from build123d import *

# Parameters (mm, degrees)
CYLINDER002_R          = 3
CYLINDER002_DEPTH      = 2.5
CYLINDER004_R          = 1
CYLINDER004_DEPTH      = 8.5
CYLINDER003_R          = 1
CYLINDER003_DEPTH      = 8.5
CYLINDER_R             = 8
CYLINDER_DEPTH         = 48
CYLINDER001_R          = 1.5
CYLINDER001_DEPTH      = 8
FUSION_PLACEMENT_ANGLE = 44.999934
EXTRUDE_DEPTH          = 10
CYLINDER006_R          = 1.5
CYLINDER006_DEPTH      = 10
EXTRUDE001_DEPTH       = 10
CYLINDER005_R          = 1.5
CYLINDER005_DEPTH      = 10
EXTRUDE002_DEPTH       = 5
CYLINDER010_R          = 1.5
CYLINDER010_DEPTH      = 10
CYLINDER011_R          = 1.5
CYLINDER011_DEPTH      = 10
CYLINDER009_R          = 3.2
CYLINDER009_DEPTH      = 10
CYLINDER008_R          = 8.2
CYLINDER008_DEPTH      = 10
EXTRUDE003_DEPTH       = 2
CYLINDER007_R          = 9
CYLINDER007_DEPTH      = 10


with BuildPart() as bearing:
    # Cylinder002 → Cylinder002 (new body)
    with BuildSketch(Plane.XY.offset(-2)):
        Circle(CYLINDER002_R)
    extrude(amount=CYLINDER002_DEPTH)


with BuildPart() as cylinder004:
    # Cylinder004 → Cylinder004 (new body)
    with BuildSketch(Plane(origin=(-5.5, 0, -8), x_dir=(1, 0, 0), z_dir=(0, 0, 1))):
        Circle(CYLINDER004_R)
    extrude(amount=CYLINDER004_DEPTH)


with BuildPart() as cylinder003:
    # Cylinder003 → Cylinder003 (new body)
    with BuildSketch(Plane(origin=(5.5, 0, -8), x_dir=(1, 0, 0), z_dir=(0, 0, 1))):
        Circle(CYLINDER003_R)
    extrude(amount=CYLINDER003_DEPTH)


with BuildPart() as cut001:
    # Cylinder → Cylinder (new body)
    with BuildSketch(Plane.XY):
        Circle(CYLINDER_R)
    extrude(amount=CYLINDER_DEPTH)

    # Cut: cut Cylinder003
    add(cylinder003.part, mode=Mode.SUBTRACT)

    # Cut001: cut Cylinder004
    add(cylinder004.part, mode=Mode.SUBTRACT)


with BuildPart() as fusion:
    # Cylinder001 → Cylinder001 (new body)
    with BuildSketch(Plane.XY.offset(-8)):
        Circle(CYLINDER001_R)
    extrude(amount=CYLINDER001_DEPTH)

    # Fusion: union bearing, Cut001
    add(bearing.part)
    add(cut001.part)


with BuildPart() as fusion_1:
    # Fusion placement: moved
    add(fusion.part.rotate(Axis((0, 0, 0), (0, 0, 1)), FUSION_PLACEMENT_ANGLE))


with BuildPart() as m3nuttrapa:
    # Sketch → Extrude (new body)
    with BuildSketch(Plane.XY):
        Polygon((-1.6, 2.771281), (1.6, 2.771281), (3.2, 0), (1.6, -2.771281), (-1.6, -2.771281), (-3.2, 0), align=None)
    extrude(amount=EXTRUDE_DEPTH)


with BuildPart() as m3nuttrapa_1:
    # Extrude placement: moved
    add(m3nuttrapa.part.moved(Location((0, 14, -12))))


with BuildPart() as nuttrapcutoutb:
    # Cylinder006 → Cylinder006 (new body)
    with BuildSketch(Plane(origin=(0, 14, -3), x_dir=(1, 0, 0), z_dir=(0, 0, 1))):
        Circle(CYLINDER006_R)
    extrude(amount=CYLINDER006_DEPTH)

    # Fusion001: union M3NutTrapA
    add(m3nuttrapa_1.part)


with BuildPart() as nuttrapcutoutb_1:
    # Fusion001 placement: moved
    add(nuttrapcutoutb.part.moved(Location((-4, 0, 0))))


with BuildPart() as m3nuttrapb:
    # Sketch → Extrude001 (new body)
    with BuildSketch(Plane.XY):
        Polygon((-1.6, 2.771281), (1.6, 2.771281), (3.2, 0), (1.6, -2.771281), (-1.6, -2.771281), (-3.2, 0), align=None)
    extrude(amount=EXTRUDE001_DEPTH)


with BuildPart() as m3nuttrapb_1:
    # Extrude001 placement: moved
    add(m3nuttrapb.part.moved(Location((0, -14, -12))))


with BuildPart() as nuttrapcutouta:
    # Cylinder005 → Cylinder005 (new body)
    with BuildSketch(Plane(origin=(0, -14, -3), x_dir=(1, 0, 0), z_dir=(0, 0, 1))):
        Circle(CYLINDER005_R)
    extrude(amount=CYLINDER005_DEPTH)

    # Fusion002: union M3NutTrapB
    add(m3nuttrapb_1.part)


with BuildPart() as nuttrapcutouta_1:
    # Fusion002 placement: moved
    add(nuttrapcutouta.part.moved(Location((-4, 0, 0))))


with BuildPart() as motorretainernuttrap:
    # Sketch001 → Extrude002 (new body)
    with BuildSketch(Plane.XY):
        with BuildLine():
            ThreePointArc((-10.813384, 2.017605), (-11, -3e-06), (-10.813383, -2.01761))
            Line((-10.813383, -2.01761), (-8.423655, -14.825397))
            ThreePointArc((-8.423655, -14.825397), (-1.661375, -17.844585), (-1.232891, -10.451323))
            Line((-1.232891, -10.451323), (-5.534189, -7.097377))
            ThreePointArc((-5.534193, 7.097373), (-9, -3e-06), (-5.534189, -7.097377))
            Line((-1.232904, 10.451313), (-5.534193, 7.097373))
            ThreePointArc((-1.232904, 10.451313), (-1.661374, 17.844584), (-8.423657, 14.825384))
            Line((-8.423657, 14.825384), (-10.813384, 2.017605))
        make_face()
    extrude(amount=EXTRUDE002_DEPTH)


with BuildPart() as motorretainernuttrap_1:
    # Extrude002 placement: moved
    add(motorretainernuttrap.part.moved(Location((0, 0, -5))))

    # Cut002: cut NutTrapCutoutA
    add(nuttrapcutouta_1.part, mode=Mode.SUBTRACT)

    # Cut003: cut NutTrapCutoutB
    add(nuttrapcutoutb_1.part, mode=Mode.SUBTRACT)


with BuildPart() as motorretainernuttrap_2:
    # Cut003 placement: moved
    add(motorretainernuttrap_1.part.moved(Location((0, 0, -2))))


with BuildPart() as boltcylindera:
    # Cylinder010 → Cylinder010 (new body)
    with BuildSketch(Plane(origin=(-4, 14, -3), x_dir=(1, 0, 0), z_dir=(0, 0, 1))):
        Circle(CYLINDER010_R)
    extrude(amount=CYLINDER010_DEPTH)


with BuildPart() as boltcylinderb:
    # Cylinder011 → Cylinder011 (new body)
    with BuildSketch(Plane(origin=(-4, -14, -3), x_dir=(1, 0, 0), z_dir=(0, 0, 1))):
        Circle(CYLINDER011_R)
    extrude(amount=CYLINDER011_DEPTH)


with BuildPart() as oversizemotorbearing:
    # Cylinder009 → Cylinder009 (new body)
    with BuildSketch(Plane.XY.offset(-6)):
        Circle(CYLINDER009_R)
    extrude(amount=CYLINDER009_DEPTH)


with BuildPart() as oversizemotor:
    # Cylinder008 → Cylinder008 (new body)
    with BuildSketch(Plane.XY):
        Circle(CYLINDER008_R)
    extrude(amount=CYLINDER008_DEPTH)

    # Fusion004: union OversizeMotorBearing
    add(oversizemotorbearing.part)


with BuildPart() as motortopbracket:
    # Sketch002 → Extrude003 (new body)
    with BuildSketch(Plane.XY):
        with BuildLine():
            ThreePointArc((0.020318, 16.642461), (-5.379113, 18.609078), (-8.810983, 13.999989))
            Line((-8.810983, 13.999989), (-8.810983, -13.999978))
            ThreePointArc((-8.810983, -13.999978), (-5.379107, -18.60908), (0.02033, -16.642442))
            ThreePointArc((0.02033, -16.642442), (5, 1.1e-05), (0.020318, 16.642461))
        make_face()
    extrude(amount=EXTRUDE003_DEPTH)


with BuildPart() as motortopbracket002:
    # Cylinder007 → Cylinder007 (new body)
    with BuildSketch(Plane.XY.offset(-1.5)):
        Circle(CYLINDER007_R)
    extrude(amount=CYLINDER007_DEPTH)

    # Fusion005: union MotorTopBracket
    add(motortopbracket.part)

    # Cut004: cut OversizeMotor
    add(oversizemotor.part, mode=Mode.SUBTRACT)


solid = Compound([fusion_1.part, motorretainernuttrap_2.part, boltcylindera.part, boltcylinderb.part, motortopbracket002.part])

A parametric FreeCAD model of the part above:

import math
import FreeCAD as App
import Part
import Sketcher
from FreeCAD import Vector
Q = App.Units.Quantity


def add_polygon(sketch, points):
    """Adds a closed chain of lines whose ends are joined by coincident constraints."""
    first, n = sketch.GeometryCount, len(points)
    for a, b in zip(points, points[1:] + points[:1]):
        sketch.addGeometry(Part.LineSegment(App.Vector(*a, 0), App.Vector(*b, 0)), False)
    for i in range(n):
        sketch.addConstraint(Sketcher.Constraint("Coincident", first + i, 2, first + (i + 1) % n, 1))

doc = App.newDocument("Part")
body = doc.addObject("PartDesign::Body", "Body")

sketch1 = body.newObject("Sketcher::SketchObject", "Sketch")
sketch1.AttachmentSupport = (doc.getObject("XY_Plane"), [""])
sketch1.MapMode = "FlatFace"
sketch1.AttachmentOffset = App.Placement(Vector(0, 0, -2), App.Rotation())
sketch1.addGeometry(Part.Circle(Vector(0, 0, 0), Vector(0, 0, 1), 3), False)
sketch1.addConstraint([
    Sketcher.Constraint("Coincident", 0, 3, -1, 1),
    Sketcher.Constraint("Diameter", 0, Q("6 mm")),
])
pad1 = body.newObject("PartDesign::Pad", "Pad")
pad1.Profile = sketch1
pad1.Length = 2.5
body2 = doc.addObject("PartDesign::Body", "Body001")

sketch2 = body2.newObject("Sketcher::SketchObject", "Sketch001")
sketch2.AttachmentSupport = (doc.getObject("XY_Plane001"), [""])
sketch2.MapMode = "FlatFace"
sketch2.AttachmentOffset = App.Placement(Vector(0, 0, -8), App.Rotation())
sketch2.addGeometry(Part.Circle(Vector(-5.5, 0, 0), Vector(0, 0, 1), 1), False)
sketch2.addConstraint([
    Sketcher.Constraint("PointOnObject", 0, 3, -1),
    Sketcher.Constraint("Diameter", 0, Q("2 mm")),
    Sketcher.Constraint("DistanceX", 0, 3, -1, 1, Q("5.5 mm")),
])
pad2 = body2.newObject("PartDesign::Pad", "Pad001")
pad2.Profile = sketch2
pad2.Length = 8.5
body3 = doc.addObject("PartDesign::Body", "Body002")

sketch3 = body3.newObject("Sketcher::SketchObject", "Sketch002")
sketch3.AttachmentSupport = (doc.getObject("XY_Plane002"), [""])
sketch3.MapMode = "FlatFace"
sketch3.AttachmentOffset = App.Placement(Vector(0, 0, -8), App.Rotation())
sketch3.addGeometry(Part.Circle(Vector(5.5, 0, 0), Vector(0, 0, 1), 1), False)
sketch3.addConstraint([
    Sketcher.Constraint("PointOnObject", 0, 3, -1),
    Sketcher.Constraint("Diameter", 0, Q("2 mm")),
    Sketcher.Constraint("DistanceX", -1, 1, 0, 3, Q("5.5 mm")),
])
pad3 = body3.newObject("PartDesign::Pad", "Pad002")
pad3.Profile = sketch3
pad3.Length = 8.5
body4 = doc.addObject("PartDesign::Body", "Body003")

sketch4 = body4.newObject("Sketcher::SketchObject", "Sketch003")
sketch4.AttachmentSupport = (doc.getObject("XY_Plane003"), [""])
sketch4.MapMode = "FlatFace"
sketch4.addGeometry(Part.Circle(Vector(0, 0, 0), Vector(0, 0, 1), 8), False)
sketch4.addConstraint([
    Sketcher.Constraint("Coincident", 0, 3, -1, 1),
    Sketcher.Constraint("Diameter", 0, Q("16 mm")),
])
pad4 = body4.newObject("PartDesign::Pad", "Pad003")
pad4.Profile = sketch4
pad4.Length = 48
doc.recompute()

boolean = body4.newObject("PartDesign::Boolean", "Boolean")
boolean.Type = "Cut"
boolean.addObjects([body3])
doc.recompute()

boolean2 = body4.newObject("PartDesign::Boolean", "Boolean001")
boolean2.Type = "Cut"
boolean2.addObjects([body2])
body5 = doc.addObject("PartDesign::Body", "Body004")

sketch5 = body5.newObject("Sketcher::SketchObject", "Sketch004")
sketch5.AttachmentSupport = (doc.getObject("XY_Plane004"), [""])
sketch5.MapMode = "FlatFace"
sketch5.AttachmentOffset = App.Placement(Vector(0, 0, -8), App.Rotation())
sketch5.addGeometry(Part.Circle(Vector(0, 0, 0), Vector(0, 0, 1), 1.5), False)
sketch5.addConstraint([
    Sketcher.Constraint("Coincident", 0, 3, -1, 1),
    Sketcher.Constraint("Diameter", 0, Q("3 mm")),
])
pad5 = body5.newObject("PartDesign::Pad", "Pad004")
pad5.Profile = sketch5
pad5.Length = 8
doc.recompute()

boolean3 = body5.newObject("PartDesign::Boolean", "Boolean002")
boolean3.Type = "Fuse"
boolean3.addObjects([body])
doc.recompute()

boolean4 = body5.newObject("PartDesign::Boolean", "Boolean003")
boolean4.Type = "Fuse"
boolean4.addObjects([body4])
body6 = doc.addObject("PartDesign::Body", "Body005")
doc.recompute()

body5.Placement = App.Placement(Vector(0, 0, 0), App.Rotation(Vector(0, 0, 1), 44.999934))
boolean5 = body6.newObject("PartDesign::Boolean", "Boolean004")
boolean5.Type = "Fuse"
boolean5.addObjects([body5])
body7 = doc.addObject("PartDesign::Body", "Body006")

sketch6 = body7.newObject("Sketcher::SketchObject", "Sketch005")
sketch6.AttachmentSupport = (doc.getObject("XY_Plane006"), [""])
sketch6.MapMode = "FlatFace"
add_polygon(sketch6, [(1.6, 2.771281), (-1.6, 2.771281), (-3.2, 0), (-1.6, -2.771281), (1.6, -2.771281), (3.2, 0)])
sketch6.addConstraint([
    Sketcher.Constraint("Horizontal", 0),
    Sketcher.Constraint("Horizontal", 3),
    Sketcher.Constraint("Symmetric", 0, 2, 3, 2, -1, 1),
    Sketcher.Constraint("Symmetric", 1, 2, 4, 2, -1, 1),
    Sketcher.Constraint("PointOnObject", 1, 2, -1),
    Sketcher.Constraint("Parallel", 2, 5),
    Sketcher.Constraint("Vertical", 0, 2, 2, 2),
    Sketcher.Constraint("Angle", 1, Q("-120.000003 deg")),
    Sketcher.Constraint("DistanceX", 0, 2, 0, 1, Q("3.2 mm")),
    Sketcher.Constraint("Distance", 1, Q("3.2 mm")),
])
pad6 = body7.newObject("PartDesign::Pad", "Pad005")
pad6.Profile = sketch6
pad6.Length = 10
body8 = doc.addObject("PartDesign::Body", "Body007")
doc.recompute()

body7.Placement = App.Placement(Vector(0, 14, -12), App.Rotation(Vector(0, 0, 1), 0))
boolean6 = body8.newObject("PartDesign::Boolean", "Boolean005")
boolean6.Type = "Fuse"
boolean6.addObjects([body7])
body9 = doc.addObject("PartDesign::Body", "Body008")

sketch7 = body9.newObject("Sketcher::SketchObject", "Sketch006")
sketch7.AttachmentSupport = (doc.getObject("XY_Plane008"), [""])
sketch7.MapMode = "FlatFace"
sketch7.AttachmentOffset = App.Placement(Vector(0, 0, -3), App.Rotation())
sketch7.addGeometry(Part.Circle(Vector(0, 14, 0), Vector(0, 0, 1), 1.5), False)
sketch7.addConstraint([
    Sketcher.Constraint("PointOnObject", 0, 3, -2),
    Sketcher.Constraint("Diameter", 0, Q("3 mm")),
    Sketcher.Constraint("DistanceY", -1, 1, 0, 3, Q("14 mm")),
])
pad7 = body9.newObject("PartDesign::Pad", "Pad006")
pad7.Profile = sketch7
pad7.Length = 10
doc.recompute()

boolean7 = body9.newObject("PartDesign::Boolean", "Boolean006")
boolean7.Type = "Fuse"
boolean7.addObjects([body8])
body10 = doc.addObject("PartDesign::Body", "Body009")
doc.recompute()

body9.Placement = App.Placement(Vector(-4, 0, 0), App.Rotation(Vector(0, 0, 1), 0))
boolean8 = body10.newObject("PartDesign::Boolean", "Boolean007")
boolean8.Type = "Fuse"
boolean8.addObjects([body9])
body11 = doc.addObject("PartDesign::Body", "Body010")

sketch8 = body11.newObject("Sketcher::SketchObject", "Sketch007")
sketch8.AttachmentSupport = (doc.getObject("XY_Plane010"), [""])
sketch8.MapMode = "FlatFace"
add_polygon(sketch8, [(1.6, 2.771281), (-1.6, 2.771281), (-3.2, 0), (-1.6, -2.771281), (1.6, -2.771281), (3.2, 0)])
sketch8.addConstraint([
    Sketcher.Constraint("Horizontal", 0),
    Sketcher.Constraint("Horizontal", 3),
    Sketcher.Constraint("Symmetric", 0, 2, 3, 2, -1, 1),
    Sketcher.Constraint("Symmetric", 1, 2, 4, 2, -1, 1),
    Sketcher.Constraint("PointOnObject", 1, 2, -1),
    Sketcher.Constraint("Parallel", 2, 5),
    Sketcher.Constraint("Vertical", 0, 2, 2, 2),
    Sketcher.Constraint("Angle", 1, Q("-120.000003 deg")),
    Sketcher.Constraint("DistanceX", 0, 2, 0, 1, Q("3.2 mm")),
    Sketcher.Constraint("Distance", 1, Q("3.2 mm")),
])
pad8 = body11.newObject("PartDesign::Pad", "Pad007")
pad8.Profile = sketch8
pad8.Length = 10
body12 = doc.addObject("PartDesign::Body", "Body011")
doc.recompute()

body11.Placement = App.Placement(Vector(0, -14, -12), App.Rotation(Vector(0, 0, 1), 0))
boolean9 = body12.newObject("PartDesign::Boolean", "Boolean008")
boolean9.Type = "Fuse"
boolean9.addObjects([body11])
body13 = doc.addObject("PartDesign::Body", "Body012")

sketch9 = body13.newObject("Sketcher::SketchObject", "Sketch008")
sketch9.AttachmentSupport = (doc.getObject("XY_Plane012"), [""])
sketch9.MapMode = "FlatFace"
sketch9.AttachmentOffset = App.Placement(Vector(0, 0, -3), App.Rotation())
sketch9.addGeometry(Part.Circle(Vector(0, -14, 0), Vector(0, 0, 1), 1.5), False)
sketch9.addConstraint([
    Sketcher.Constraint("PointOnObject", 0, 3, -2),
    Sketcher.Constraint("Diameter", 0, Q("3 mm")),
    Sketcher.Constraint("DistanceY", 0, 3, -1, 1, Q("14 mm")),
])
pad9 = body13.newObject("PartDesign::Pad", "Pad008")
pad9.Profile = sketch9
pad9.Length = 10
doc.recompute()

boolean10 = body13.newObject("PartDesign::Boolean", "Boolean009")
boolean10.Type = "Fuse"
boolean10.addObjects([body12])
body14 = doc.addObject("PartDesign::Body", "Body013")
doc.recompute()

body13.Placement = App.Placement(Vector(-4, 0, 0), App.Rotation(Vector(0, 0, 1), 0))
boolean11 = body14.newObject("PartDesign::Boolean", "Boolean010")
boolean11.Type = "Fuse"
boolean11.addObjects([body13])
body15 = doc.addObject("PartDesign::Body", "Body014")

sketch10 = body15.newObject("Sketcher::SketchObject", "Sketch009")
sketch10.AttachmentSupport = (doc.getObject("XY_Plane014"), [""])
sketch10.MapMode = "FlatFace"
sketch10.addGeometry([
    Part.ArcOfCircle(Part.Circle(Vector(0.000007, 0, 0), Vector(0, 0, 1), 11.000007), math.radians(169.431059), math.radians(190.56897)),
    Part.LineSegment(Vector(-10.813383, -2.01761, 0), Vector(-8.423655, -14.825397, 0)),
    Part.ArcOfCircle(Part.Circle(Vector(-4, -14, 0), Vector(0, 0, 1), 4.5), math.radians(-169.430881), math.radians(52.054391)),
    Part.LineSegment(Vector(-1.232891, -10.451323, 0), Vector(-5.534189, -7.097377, 0)),
    Part.ArcOfCircle(Part.Circle(Vector(0, 0, 0), Vector(0, 0, 1), 9), math.radians(127.945406), math.radians(232.054626)),
    Part.LineSegment(Vector(-5.534193, 7.097373, 0), Vector(-1.232904, 10.451313, 0)),
    Part.ArcOfCircle(Part.Circle(Vector(-4, 14, 0), Vector(0, 0, 1), 4.5), math.radians(-52.0546), math.radians(169.431047)),
    Part.LineSegment(Vector(-8.423657, 14.825384, 0), Vector(-10.813384, 2.017605, 0)),
], False)
sketch10.addConstraint([
    Sketcher.Constraint("Tangent", 0, 2, 1, 1),
    Sketcher.Constraint("Coincident", 1, 2, 2, 1),
    Sketcher.Constraint("Coincident", 2, 2, 3, 1),
    Sketcher.Constraint("Tangent", 3, 2, 4, 2),
    Sketcher.Constraint("Tangent", 4, 1, 5, 1),
    Sketcher.Constraint("Tangent", 5, 2, 6, 1),
    Sketcher.Constraint("Tangent", 6, 2, 7, 1),
    Sketcher.Constraint("Tangent", 7, 2, 0, 1),
    Sketcher.Constraint("Coincident", 0, 3, -1, 1),
    Sketcher.Constraint("Coincident", 4, 3, -1, 1),
    Sketcher.Constraint("Equal", 2, 6),
    Sketcher.Constraint("Symmetric", 2, 3, 6, 3, -1),
    Sketcher.Constraint("Radius", 4, Q("9 mm")),
    Sketcher.Constraint("Radius", 2, Q("4.5 mm")),
    Sketcher.Constraint("DistanceX", 2, 3, -1, 1, Q("4 mm")),
    Sketcher.Constraint("DistanceY", 2, 3, -1, 1, Q("14 mm")),
    Sketcher.Constraint("Radius", 0, Q("11.000007 mm")),
    Sketcher.Constraint("DistanceX", 2, 2, 0, 3, Q("1.232898 mm")),
    Sketcher.Constraint("DistanceY", 1, 2, 3, 2, Q("7.72802 mm")),
])
pad10 = body15.newObject("PartDesign::Pad", "Pad009")
pad10.Profile = sketch10
pad10.Length = 5
body16 = doc.addObject("PartDesign::Body", "Body015")
doc.recompute()

body15.Placement = App.Placement(Vector(0, 0, -5), App.Rotation(Vector(0, 0, 1), 0))
boolean12 = body16.newObject("PartDesign::Boolean", "Boolean011")
boolean12.Type = "Fuse"
boolean12.addObjects([body15])
doc.recompute()

boolean13 = body16.newObject("PartDesign::Boolean", "Boolean012")
boolean13.Type = "Cut"
boolean13.addObjects([body14])
doc.recompute()

boolean14 = body16.newObject("PartDesign::Boolean", "Boolean013")
boolean14.Type = "Cut"
boolean14.addObjects([body10])
body17 = doc.addObject("PartDesign::Body", "Body016")
doc.recompute()

body16.Placement = App.Placement(Vector(0, 0, -2), App.Rotation(Vector(0, 0, 1), 0))
boolean15 = body17.newObject("PartDesign::Boolean", "Boolean014")
boolean15.Type = "Fuse"
boolean15.addObjects([body16])
body18 = doc.addObject("PartDesign::Body", "Body017")

sketch11 = body18.newObject("Sketcher::SketchObject", "Sketch010")
sketch11.AttachmentSupport = (doc.getObject("XY_Plane017"), [""])
sketch11.MapMode = "FlatFace"
sketch11.AttachmentOffset = App.Placement(Vector(0, 0, -3), App.Rotation())
sketch11.addGeometry(Part.Circle(Vector(-4, 14, 0), Vector(0, 0, 1), 1.5), False)
sketch11.addConstraint([
    Sketcher.Constraint("Diameter", 0, Q("3 mm")),
    Sketcher.Constraint("DistanceX", 0, 3, -1, 1, Q("4 mm")),
    Sketcher.Constraint("DistanceY", -1, 1, 0, 3, Q("14 mm")),
])
pad11 = body18.newObject("PartDesign::Pad", "Pad010")
pad11.Profile = sketch11
pad11.Length = 10
body19 = doc.addObject("PartDesign::Body", "Body018")

sketch12 = body19.newObject("Sketcher::SketchObject", "Sketch011")
sketch12.AttachmentSupport = (doc.getObject("XY_Plane018"), [""])
sketch12.MapMode = "FlatFace"
sketch12.AttachmentOffset = App.Placement(Vector(0, 0, -3), App.Rotation())
sketch12.addGeometry(Part.Circle(Vector(-4, -14, 0), Vector(0, 0, 1), 1.5), False)
sketch12.addConstraint([
    Sketcher.Constraint("Diameter", 0, Q("3 mm")),
    Sketcher.Constraint("DistanceX", 0, 3, -1, 1, Q("4 mm")),
    Sketcher.Constraint("DistanceY", 0, 3, -1, 1, Q("14 mm")),
])
pad12 = body19.newObject("PartDesign::Pad", "Pad011")
pad12.Profile = sketch12
pad12.Length = 10
body20 = doc.addObject("PartDesign::Body", "Body019")

sketch13 = body20.newObject("Sketcher::SketchObject", "Sketch012")
sketch13.AttachmentSupport = (doc.getObject("XY_Plane019"), [""])
sketch13.MapMode = "FlatFace"
sketch13.AttachmentOffset = App.Placement(Vector(0, 0, -6), App.Rotation())
sketch13.addGeometry(Part.Circle(Vector(0, 0, 0), Vector(0, 0, 1), 3.2), False)
sketch13.addConstraint([
    Sketcher.Constraint("Coincident", 0, 3, -1, 1),
    Sketcher.Constraint("Diameter", 0, Q("6.4 mm")),
])
pad13 = body20.newObject("PartDesign::Pad", "Pad012")
pad13.Profile = sketch13
pad13.Length = 10
body21 = doc.addObject("PartDesign::Body", "Body020")

sketch14 = body21.newObject("Sketcher::SketchObject", "Sketch013")
sketch14.AttachmentSupport = (doc.getObject("XY_Plane020"), [""])
sketch14.MapMode = "FlatFace"
sketch14.addGeometry(Part.Circle(Vector(0, 0, 0), Vector(0, 0, 1), 8.2), False)
sketch14.addConstraint([
    Sketcher.Constraint("Coincident", 0, 3, -1, 1),
    Sketcher.Constraint("Diameter", 0, Q("16.4 mm")),
])
pad14 = body21.newObject("PartDesign::Pad", "Pad013")
pad14.Profile = sketch14
pad14.Length = 10
doc.recompute()

boolean16 = body21.newObject("PartDesign::Boolean", "Boolean015")
boolean16.Type = "Fuse"
boolean16.addObjects([body20])
body22 = doc.addObject("PartDesign::Body", "Body021")

sketch15 = body22.newObject("Sketcher::SketchObject", "Sketch014")
sketch15.AttachmentSupport = (doc.getObject("XY_Plane021"), [""])
sketch15.MapMode = "FlatFace"
sketch15.addGeometry([
    Part.ArcOfCircle(Part.Circle(Vector(-4, 13.999999, 0), Vector(0, 0, 1), 4.810983), math.radians(33.31599), math.radians(180.000123)),
    Part.LineSegment(Vector(-8.810983, 13.999989, 0), Vector(-8.810983, -13.999978, 0)),
    Part.ArcOfCircle(Part.Circle(Vector(-4, -14, 0), Vector(0, 0, 1), 4.810983), math.radians(179.99974), math.radians(326.684284)),
    Part.ArcOfCircle(Part.Circle(Vector(-25.3, 0, 0), Vector(0, 0, 1), 30.3), math.radians(-33.315954), math.radians(33.315995)),
], False)
sketch15.addConstraint([
    Sketcher.Constraint("Coincident", 0, 2, 1, 1),
    Sketcher.Constraint("Coincident", 1, 2, 2, 1),
    Sketcher.Constraint("Coincident", 2, 2, 3, 1),
    Sketcher.Constraint("Tangent", 3, 2, 0, 1),
    Sketcher.Constraint("Vertical", 1),
    Sketcher.Constraint("Equal", 0, 2),
    Sketcher.Constraint("PointOnObject", 3, 3, -1),
    Sketcher.Constraint("Radius", 3, Q("30.3 mm")),
    Sketcher.Constraint("DistanceX", 0, 3, -1, 1, Q("4 mm")),
    Sketcher.Constraint("DistanceY", -1, 1, 0, 3, Q("13.999999 mm")),
    Sketcher.Constraint("DistanceX", 3, 3, -1, 1, Q("25.3 mm")),
    Sketcher.Constraint("DistanceY", 1, 2, 1, 1, Q("27.999967 mm")),
    Sketcher.Constraint("DistanceY", -1, 1, 0, 2, Q("13.999989 mm")),
    Sketcher.Constraint("DistanceX", -1, 1, 2, 2, Q("0.02033 mm")),
])
pad15 = body22.newObject("PartDesign::Pad", "Pad014")
pad15.Profile = sketch15
pad15.Length = 2
body23 = doc.addObject("PartDesign::Body", "Body022")

sketch16 = body23.newObject("Sketcher::SketchObject", "Sketch015")
sketch16.AttachmentSupport = (doc.getObject("XY_Plane022"), [""])
sketch16.MapMode = "FlatFace"
sketch16.AttachmentOffset = App.Placement(Vector(0, 0, -1.5), App.Rotation())
sketch16.addGeometry(Part.Circle(Vector(0, 0, 0), Vector(0, 0, 1), 9), False)
sketch16.addConstraint([
    Sketcher.Constraint("Coincident", 0, 3, -1, 1),
    Sketcher.Constraint("Diameter", 0, Q("18 mm")),
])
pad16 = body23.newObject("PartDesign::Pad", "Pad015")
pad16.Profile = sketch16
pad16.Length = 10
doc.recompute()

boolean17 = body23.newObject("PartDesign::Boolean", "Boolean016")
boolean17.Type = "Fuse"
boolean17.addObjects([body22])
doc.recompute()

boolean18 = body23.newObject("PartDesign::Boolean", "Boolean017")
boolean18.Type = "Cut"
boolean18.addObjects([body21])

doc.recompute()
